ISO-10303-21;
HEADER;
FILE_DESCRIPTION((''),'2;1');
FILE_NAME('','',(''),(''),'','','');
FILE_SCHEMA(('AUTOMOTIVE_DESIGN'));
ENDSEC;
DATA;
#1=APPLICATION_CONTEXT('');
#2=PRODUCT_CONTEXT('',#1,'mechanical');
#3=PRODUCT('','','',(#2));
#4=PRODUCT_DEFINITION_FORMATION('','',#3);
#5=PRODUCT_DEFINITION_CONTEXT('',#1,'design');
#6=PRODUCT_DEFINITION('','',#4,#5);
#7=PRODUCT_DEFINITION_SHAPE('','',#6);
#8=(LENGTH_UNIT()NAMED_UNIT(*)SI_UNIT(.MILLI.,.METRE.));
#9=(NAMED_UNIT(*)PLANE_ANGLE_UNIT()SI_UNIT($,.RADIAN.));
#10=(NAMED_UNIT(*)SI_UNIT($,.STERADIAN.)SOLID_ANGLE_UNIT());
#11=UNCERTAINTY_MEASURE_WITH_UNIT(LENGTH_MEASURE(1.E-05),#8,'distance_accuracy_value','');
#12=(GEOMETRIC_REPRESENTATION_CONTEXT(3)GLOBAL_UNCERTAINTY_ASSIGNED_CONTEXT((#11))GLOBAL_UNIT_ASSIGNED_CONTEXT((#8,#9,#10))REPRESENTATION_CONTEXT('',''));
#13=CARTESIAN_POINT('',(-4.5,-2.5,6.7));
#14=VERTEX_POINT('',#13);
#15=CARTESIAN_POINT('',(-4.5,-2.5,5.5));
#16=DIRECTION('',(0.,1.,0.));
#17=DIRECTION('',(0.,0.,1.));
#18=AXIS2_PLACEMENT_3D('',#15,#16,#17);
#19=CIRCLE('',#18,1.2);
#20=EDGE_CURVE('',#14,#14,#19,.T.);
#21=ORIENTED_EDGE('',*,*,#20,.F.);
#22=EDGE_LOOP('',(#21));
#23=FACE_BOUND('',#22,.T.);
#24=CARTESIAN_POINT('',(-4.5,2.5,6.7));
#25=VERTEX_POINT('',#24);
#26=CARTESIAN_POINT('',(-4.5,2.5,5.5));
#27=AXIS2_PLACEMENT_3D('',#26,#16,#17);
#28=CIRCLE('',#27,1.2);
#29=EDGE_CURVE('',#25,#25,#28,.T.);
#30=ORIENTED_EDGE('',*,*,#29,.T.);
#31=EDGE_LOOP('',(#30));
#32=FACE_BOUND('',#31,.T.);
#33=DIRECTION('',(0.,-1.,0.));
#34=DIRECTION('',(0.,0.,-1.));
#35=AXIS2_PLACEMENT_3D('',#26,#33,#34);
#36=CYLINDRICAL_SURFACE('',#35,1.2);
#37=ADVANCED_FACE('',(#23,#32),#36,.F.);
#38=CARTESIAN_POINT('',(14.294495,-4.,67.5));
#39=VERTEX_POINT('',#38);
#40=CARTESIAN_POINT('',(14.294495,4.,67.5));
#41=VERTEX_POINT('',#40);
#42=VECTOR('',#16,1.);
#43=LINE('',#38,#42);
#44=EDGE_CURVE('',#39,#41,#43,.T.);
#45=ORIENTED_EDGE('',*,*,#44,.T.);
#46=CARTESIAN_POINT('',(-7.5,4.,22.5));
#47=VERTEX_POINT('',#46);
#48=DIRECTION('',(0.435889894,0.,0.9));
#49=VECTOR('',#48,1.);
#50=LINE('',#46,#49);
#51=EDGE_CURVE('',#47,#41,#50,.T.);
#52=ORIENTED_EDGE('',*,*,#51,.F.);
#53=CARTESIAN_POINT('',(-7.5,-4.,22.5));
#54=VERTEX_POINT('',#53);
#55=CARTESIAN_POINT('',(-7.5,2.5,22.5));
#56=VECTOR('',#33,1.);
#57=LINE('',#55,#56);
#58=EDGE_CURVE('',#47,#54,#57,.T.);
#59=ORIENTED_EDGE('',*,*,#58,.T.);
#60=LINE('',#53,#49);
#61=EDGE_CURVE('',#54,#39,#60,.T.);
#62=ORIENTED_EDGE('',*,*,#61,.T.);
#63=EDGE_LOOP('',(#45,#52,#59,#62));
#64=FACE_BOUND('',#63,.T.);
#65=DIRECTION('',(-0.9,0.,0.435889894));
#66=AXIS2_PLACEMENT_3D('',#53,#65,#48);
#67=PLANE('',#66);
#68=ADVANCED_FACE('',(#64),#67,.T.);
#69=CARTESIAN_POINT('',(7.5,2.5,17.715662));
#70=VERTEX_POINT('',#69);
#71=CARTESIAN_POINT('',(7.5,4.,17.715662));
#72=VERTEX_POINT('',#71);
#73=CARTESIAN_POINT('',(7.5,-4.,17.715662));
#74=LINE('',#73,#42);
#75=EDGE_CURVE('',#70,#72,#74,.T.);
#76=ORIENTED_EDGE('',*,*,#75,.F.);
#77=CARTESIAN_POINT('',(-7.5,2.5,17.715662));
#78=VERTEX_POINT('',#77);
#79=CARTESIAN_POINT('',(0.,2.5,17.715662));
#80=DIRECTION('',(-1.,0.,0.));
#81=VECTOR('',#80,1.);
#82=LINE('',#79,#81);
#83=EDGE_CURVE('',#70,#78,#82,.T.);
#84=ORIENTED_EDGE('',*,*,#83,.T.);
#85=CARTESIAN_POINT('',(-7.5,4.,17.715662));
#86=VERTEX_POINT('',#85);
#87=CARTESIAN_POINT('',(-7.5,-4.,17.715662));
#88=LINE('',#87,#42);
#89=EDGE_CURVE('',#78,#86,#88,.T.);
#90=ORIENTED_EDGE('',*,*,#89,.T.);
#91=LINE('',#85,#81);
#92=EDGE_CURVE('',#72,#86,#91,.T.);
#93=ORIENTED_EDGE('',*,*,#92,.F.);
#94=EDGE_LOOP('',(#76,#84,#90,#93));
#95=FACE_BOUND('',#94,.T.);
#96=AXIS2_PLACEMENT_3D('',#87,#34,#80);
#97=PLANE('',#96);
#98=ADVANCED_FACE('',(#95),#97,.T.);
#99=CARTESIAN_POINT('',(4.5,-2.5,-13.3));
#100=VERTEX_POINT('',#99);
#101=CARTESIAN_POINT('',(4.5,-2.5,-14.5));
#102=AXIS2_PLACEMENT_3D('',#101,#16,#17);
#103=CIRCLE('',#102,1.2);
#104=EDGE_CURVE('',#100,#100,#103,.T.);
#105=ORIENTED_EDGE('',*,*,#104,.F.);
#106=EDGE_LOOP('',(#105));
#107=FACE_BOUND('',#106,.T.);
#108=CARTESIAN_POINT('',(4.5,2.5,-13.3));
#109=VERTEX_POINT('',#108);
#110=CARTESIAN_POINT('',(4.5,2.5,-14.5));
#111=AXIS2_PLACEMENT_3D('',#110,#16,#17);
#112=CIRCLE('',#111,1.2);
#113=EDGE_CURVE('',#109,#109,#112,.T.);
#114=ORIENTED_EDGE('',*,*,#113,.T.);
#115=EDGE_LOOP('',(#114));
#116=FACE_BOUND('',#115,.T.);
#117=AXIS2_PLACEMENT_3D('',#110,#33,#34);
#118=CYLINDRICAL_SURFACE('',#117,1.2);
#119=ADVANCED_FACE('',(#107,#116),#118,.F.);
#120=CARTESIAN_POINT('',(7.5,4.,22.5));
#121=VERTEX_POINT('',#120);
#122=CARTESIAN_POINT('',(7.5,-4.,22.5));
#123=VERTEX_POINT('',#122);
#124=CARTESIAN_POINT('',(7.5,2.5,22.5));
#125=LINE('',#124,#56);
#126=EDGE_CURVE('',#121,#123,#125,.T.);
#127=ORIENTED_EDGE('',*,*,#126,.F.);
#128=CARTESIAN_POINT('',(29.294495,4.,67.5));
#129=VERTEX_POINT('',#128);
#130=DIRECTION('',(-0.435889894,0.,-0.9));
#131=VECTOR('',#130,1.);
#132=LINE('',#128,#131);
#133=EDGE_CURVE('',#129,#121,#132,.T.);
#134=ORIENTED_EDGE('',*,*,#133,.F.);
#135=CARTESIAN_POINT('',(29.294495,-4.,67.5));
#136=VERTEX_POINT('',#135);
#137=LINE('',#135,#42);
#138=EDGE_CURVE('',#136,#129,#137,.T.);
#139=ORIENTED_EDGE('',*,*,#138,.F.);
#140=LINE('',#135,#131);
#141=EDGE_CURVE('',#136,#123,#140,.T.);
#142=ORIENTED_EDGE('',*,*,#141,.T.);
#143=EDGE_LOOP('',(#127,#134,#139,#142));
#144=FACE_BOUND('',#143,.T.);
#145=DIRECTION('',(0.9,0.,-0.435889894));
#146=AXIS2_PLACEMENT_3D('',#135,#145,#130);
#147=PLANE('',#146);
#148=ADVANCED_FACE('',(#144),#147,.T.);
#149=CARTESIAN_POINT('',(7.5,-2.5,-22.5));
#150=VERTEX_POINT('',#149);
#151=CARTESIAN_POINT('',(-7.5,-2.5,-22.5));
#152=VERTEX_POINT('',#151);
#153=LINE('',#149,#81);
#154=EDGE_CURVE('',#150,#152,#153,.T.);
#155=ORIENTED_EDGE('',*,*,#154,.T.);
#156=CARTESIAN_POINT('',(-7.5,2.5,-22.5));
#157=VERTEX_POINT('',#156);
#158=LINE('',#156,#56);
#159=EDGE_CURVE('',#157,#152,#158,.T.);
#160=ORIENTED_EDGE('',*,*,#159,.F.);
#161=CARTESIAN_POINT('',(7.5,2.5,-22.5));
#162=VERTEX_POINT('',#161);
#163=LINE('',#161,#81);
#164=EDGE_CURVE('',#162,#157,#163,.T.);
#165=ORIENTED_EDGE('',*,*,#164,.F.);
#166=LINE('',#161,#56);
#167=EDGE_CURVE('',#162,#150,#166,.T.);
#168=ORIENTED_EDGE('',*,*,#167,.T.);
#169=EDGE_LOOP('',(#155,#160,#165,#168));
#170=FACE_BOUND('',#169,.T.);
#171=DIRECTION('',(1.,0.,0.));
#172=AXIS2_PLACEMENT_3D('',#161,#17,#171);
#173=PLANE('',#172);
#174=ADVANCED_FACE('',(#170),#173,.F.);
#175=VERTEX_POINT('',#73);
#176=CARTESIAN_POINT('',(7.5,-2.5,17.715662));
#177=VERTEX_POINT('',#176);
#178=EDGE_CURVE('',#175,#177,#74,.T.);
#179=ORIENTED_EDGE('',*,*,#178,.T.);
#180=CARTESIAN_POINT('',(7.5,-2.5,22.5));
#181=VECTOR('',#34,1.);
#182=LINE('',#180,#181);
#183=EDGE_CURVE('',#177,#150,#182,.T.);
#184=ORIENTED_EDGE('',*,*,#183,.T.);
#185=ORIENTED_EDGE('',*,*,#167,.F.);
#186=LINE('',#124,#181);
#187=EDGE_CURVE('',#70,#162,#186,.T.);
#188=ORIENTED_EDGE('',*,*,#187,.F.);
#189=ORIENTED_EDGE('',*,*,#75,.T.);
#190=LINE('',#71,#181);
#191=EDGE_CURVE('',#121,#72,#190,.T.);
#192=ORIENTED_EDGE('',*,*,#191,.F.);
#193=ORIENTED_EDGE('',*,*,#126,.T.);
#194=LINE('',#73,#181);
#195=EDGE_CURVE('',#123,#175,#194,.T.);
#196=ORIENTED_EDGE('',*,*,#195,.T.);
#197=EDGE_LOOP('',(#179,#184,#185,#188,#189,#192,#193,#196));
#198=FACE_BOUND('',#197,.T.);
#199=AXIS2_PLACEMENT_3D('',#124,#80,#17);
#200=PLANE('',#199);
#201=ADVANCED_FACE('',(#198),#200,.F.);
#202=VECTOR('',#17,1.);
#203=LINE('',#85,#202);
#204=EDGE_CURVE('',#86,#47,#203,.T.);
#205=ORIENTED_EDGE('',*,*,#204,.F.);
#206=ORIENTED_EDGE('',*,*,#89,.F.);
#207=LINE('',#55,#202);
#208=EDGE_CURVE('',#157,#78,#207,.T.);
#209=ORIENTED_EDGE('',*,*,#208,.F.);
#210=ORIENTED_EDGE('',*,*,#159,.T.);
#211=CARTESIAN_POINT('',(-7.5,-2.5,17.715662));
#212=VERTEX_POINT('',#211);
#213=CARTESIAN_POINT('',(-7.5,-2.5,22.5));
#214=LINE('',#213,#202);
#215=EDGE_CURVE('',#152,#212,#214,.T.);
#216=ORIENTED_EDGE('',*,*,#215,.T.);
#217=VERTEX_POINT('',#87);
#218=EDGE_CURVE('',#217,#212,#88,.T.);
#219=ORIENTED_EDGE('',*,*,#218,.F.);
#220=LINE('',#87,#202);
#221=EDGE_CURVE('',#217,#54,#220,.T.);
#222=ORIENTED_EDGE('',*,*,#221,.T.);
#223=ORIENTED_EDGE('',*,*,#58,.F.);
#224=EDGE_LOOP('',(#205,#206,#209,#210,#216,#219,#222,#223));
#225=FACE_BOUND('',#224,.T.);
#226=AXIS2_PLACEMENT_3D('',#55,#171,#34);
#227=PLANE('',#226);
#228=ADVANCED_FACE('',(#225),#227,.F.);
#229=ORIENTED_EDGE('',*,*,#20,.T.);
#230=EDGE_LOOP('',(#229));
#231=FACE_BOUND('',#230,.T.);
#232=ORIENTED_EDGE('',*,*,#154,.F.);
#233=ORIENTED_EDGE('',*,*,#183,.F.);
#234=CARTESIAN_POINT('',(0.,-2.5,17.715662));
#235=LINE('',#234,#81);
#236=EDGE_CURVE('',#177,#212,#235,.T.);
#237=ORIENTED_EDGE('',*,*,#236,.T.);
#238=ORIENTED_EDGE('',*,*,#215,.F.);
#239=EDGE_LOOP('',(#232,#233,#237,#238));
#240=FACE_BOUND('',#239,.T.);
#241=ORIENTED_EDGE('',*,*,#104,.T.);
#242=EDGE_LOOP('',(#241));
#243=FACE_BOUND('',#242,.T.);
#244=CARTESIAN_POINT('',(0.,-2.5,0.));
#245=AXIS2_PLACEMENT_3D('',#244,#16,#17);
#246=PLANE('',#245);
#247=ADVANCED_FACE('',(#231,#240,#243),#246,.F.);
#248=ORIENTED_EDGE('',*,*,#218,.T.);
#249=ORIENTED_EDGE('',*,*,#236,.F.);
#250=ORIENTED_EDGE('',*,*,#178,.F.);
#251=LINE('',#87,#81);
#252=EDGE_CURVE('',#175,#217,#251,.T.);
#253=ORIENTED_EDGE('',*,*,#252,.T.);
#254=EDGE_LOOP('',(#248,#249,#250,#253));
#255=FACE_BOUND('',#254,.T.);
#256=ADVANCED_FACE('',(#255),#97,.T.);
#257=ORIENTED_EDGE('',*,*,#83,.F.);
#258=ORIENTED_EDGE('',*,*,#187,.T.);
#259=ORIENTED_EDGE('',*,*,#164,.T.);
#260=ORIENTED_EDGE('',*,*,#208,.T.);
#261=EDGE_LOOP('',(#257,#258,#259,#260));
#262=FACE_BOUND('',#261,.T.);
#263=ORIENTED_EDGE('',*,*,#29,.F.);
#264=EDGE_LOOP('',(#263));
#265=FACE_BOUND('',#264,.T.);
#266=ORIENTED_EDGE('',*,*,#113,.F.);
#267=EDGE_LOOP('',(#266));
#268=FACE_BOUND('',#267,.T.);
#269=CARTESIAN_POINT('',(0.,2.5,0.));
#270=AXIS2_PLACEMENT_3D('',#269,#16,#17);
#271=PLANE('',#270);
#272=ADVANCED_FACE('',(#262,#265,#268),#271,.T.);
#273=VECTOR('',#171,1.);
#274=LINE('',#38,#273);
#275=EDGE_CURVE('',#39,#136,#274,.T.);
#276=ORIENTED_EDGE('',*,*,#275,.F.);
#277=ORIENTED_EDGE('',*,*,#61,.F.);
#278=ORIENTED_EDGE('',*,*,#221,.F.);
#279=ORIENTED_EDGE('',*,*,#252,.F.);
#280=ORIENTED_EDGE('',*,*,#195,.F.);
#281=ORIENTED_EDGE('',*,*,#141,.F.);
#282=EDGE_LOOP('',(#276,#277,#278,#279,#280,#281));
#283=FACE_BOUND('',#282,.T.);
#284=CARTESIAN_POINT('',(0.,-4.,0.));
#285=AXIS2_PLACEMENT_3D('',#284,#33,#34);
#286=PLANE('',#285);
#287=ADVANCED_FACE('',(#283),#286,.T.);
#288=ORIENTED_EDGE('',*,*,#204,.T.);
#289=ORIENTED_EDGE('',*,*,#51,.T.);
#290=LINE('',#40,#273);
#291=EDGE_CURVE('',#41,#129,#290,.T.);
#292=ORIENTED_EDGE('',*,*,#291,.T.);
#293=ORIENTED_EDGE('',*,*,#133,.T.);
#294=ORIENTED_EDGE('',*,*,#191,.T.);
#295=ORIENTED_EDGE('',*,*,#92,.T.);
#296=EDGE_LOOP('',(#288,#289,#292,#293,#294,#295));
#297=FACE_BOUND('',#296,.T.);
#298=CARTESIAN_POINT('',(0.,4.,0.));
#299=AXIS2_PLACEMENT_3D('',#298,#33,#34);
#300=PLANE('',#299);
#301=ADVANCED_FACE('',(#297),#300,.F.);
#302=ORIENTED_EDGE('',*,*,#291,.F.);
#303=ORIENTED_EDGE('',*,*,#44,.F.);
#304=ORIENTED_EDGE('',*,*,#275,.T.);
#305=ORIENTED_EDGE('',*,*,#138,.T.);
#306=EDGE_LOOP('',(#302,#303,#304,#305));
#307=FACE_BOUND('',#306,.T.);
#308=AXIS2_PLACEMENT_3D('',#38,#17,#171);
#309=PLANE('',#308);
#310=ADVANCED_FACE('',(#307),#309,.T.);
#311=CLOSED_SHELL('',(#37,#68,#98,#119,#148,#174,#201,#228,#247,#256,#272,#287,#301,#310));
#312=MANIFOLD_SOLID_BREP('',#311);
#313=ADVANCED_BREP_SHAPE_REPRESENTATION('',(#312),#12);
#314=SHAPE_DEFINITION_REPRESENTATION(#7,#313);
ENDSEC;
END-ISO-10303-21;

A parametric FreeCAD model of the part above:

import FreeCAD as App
import Part
import Sketcher
from FreeCAD import Vector


def add_polygon(sketch, points):
    """Adds a closed chain of lines whose ends are joined by coincident constraints."""
    first, n = sketch.GeometryCount, len(points)
    for a, b in zip(points, points[1:] + points[:1]):
        sketch.addGeometry(Part.LineSegment(App.Vector(*a, 0), App.Vector(*b, 0)), False)
    for i in range(n):
        sketch.addConstraint(Sketcher.Constraint("Coincident", first + i, 2, first + (i + 1) % n, 1))

doc = App.newDocument("Part")
body = doc.addObject("PartDesign::Body", "Body")

sketch1 = body.newObject("Sketcher::SketchObject", "Sketch")
sketch1.AttachmentSupport = (doc.getObject("XZ_Plane"), [""])
sketch1.MapMode = "FlatFace"
add_polygon(sketch1, [(-7.5, -22.5), (-7.5, 22.5), (7.5, 22.5), (7.5, -22.5)])
sketch1.addGeometry(Part.Circle(Vector(-4.5, 5.5, 0), Vector(0, 0, 1), 1.2), False)
sketch1.addGeometry(Part.Circle(Vector(4.5, -14.5, 0), Vector(0, 0, 1), 1.2), False)
sketch1.addConstraint([
    Sketcher.Constraint("Vertical", 0),
    Sketcher.Constraint("Horizontal", 1),
    Sketcher.Constraint("Vertical", 2),
    Sketcher.Constraint("Horizontal", 3),
    Sketcher.Constraint("Equal", 4, 5),
    Sketcher.Constraint("Symmetric", 0, 2, 2, 2, -1, 1),
    Sketcher.Constraint("Diameter", 4, 2.4),
    Sketcher.Constraint("DistanceX", 1, 1, 1, 2, 15.0),
    Sketcher.Constraint("DistanceY", 0, 1, 0, 2, 45.0),
    Sketcher.Constraint("DistanceX", 4, 3, 5, 3, 9.0),
    Sketcher.Constraint("DistanceY", 5, 3, 4, 3, 20.0),
    Sketcher.Constraint("DistanceX", 0, 2, 4, 3, 3.0),
    Sketcher.Constraint("DistanceY", 4, 3, 0, 2, 17.0),
])
pad1 = body.newObject("PartDesign::Pad", "Pad")
pad1.Profile = sketch1
pad1.Length = 5
pad1.Midplane = True

sketch2 = body.newObject("Sketcher::SketchObject", "Sketch001")
sketch2.AttachmentSupport = (doc.getObject("XZ_Plane"), [""])
sketch2.MapMode = "FlatFace"
add_polygon(sketch2, [(-7.5, 17.7), (-7.5, 22.5), (14.3, 67.5), (29.3, 67.5), (7.5, 22.5), (7.5, 17.7)])
sketch2.addConstraint([
    Sketcher.Constraint("Vertical", 0),
    Sketcher.Constraint("Horizontal", 2),
    Sketcher.Constraint("Vertical", 4),
    Sketcher.Constraint("Horizontal", 5),
    Sketcher.Constraint("Symmetric", 0, 2, 3, 2, -2),
    Sketcher.Constraint("Parallel", 1, 3),
    Sketcher.Constraint("DistanceX", 2, 1, 2, 2, 15.0),
    Sketcher.Constraint("Distance", 1, 50.0),
    Sketcher.Constraint("DistanceY", 0, 2, 1, 2, 45.0),
    Sketcher.Constraint("DistanceY", -1, 1, 0, 2, 22.5),
    Sketcher.Constraint("DistanceY", 0, 1, 0, 2, 4.784338),
])
pad2 = body.newObject("PartDesign::Pad", "Pad001")
pad2.Profile = sketch2
pad2.Length = 8
pad2.Midplane = True

doc.recompute()
